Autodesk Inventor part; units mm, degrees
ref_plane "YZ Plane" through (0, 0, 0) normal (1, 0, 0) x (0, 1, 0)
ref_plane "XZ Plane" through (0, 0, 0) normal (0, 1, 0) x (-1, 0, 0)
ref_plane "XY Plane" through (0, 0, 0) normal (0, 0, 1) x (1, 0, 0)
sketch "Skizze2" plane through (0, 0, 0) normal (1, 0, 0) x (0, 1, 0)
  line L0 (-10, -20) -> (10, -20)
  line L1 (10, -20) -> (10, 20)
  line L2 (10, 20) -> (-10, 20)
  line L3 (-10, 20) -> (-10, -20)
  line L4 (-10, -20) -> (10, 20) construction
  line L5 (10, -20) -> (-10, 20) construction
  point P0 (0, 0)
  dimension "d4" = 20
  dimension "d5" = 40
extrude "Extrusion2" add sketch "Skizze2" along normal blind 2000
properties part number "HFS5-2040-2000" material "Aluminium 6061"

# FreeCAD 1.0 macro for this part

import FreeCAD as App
import Part
import Sketcher

V = App.Vector

doc = App.newDocument("Part")
body = doc.addObject("PartDesign::Body", "Body")

# Sketch on YZ plane
sketch1 = body.newObject("Sketcher::SketchObject", "Sketch")
sketch1.AttachmentSupport = (doc.getObject("YZ_Plane"), [""])
sketch1.MapMode = "FlatFace"
sketch1.addGeometry([
    Part.LineSegment(V(-10, 20, 0), V(-10, -20, 0)),
    Part.LineSegment(V(-10, -20, 0), V(10, -20, 0)),
    Part.LineSegment(V(10, -20, 0), V(10, 20, 0)),
    Part.LineSegment(V(10, 20, 0), V(-10, 20, 0)),
], False)
sketch1.addConstraint([
    Sketcher.Constraint("Coincident", 0, 2, 1, 1),
    Sketcher.Constraint("Coincident", 1, 2, 2, 1),
    Sketcher.Constraint("Coincident", 2, 2, 3, 1),
    Sketcher.Constraint("Coincident", 3, 2, 0, 1),
    Sketcher.Constraint("Vertical", 0),
    Sketcher.Constraint("Horizontal", 1),
    Sketcher.Constraint("Vertical", 2),
    Sketcher.Constraint("Horizontal", 3),
    Sketcher.Constraint("Symmetric", 0, 2, 2, 2, -1, 1),
    Sketcher.Constraint("DistanceX", 1, 1, 1, 2, 20.0),
    Sketcher.Constraint("DistanceY", 0, 2, 0, 1, 40.0),
])
pad1 = body.newObject("PartDesign::Pad", "Pad")
pad1.Profile = sketch1
pad1.Length = 2000

doc.recompute()
